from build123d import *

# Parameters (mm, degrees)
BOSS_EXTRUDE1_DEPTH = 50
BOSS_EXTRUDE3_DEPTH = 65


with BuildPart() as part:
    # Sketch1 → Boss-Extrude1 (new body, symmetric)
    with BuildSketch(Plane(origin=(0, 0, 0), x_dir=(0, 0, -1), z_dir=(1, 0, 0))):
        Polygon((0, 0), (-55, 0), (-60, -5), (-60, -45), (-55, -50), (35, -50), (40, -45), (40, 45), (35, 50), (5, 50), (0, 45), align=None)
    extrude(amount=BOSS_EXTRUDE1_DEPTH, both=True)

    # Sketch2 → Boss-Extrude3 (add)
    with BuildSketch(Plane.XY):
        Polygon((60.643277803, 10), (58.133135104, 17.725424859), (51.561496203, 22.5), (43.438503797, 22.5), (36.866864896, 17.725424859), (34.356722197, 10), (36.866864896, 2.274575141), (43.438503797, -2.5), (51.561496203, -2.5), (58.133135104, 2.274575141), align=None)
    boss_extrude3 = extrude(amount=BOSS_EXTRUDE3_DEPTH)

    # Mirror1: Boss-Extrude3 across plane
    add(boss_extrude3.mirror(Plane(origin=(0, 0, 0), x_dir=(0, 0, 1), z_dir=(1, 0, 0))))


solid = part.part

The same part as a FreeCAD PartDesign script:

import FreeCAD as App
import Part
import Sketcher
from FreeCAD import Vector
Q = App.Units.Quantity

doc = App.newDocument("Part")
body = doc.addObject("PartDesign::Body", "Body")

sketch1 = body.newObject("Sketcher::SketchObject", "Sketch")
sketch1.AttachmentSupport = (doc.getObject("YZ_Plane"), [""])
sketch1.MapMode = "FlatFace"
sketch1.addGeometry(Part.LineSegment(Vector(0, 0, 0), Vector(0, 55, 0)), False)
sketch1.addGeometry(Part.LineSegment(Vector(0, 55, 0), Vector(-5, 60, 0)), False)
sketch1.addGeometry(Part.LineSegment(Vector(-5, 60, 0), Vector(-45, 60, 0)), False)
sketch1.addGeometry(Part.LineSegment(Vector(-45, 60, 0), Vector(-50, 55, 0)), False)
sketch1.addGeometry(Part.LineSegment(Vector(-50, 55, 0), Vector(-50, -35, 0)), False)
sketch1.addGeometry(Part.LineSegment(Vector(-50, -35, 0), Vector(-45, -40, 0)), False)
sketch1.addGeometry(Part.LineSegment(Vector(-45, -40, 0), Vector(45, -40, 0)), False)
sketch1.addGeometry(Part.LineSegment(Vector(45, -40, 0), Vector(50, -35, 0)), False)
sketch1.addGeometry(Part.LineSegment(Vector(50, -35, 0), Vector(50, -5, 0)), False)
sketch1.addGeometry(Part.LineSegment(Vector(50, -5, 0), Vector(45, 0, 0)), False)
sketch1.addGeometry(Part.LineSegment(Vector(45, 0, 0), Vector(0, 0, 0)), False)
sketch1.addConstraint(Sketcher.Constraint("Coincident", 0, 2, 1, 1))
sketch1.addConstraint(Sketcher.Constraint("Coincident", 1, 2, 2, 1))
sketch1.addConstraint(Sketcher.Constraint("Coincident", 2, 2, 3, 1))
sketch1.addConstraint(Sketcher.Constraint("Coincident", 3, 2, 4, 1))
sketch1.addConstraint(Sketcher.Constraint("Coincident", 4, 2, 5, 1))
sketch1.addConstraint(Sketcher.Constraint("Coincident", 5, 2, 6, 1))
sketch1.addConstraint(Sketcher.Constraint("Coincident", 6, 2, 7, 1))
sketch1.addConstraint(Sketcher.Constraint("Coincident", 7, 2, 8, 1))
sketch1.addConstraint(Sketcher.Constraint("Coincident", 8, 2, 9, 1))
sketch1.addConstraint(Sketcher.Constraint("Coincident", 9, 2, 10, 1))
sketch1.addConstraint(Sketcher.Constraint("Coincident", 10, 2, 0, 1))
sketch1.addConstraint(Sketcher.Constraint("Vertical", 0))
sketch1.addConstraint(Sketcher.Constraint("Horizontal", 2))
sketch1.addConstraint(Sketcher.Constraint("Vertical", 4))
sketch1.addConstraint(Sketcher.Constraint("Horizontal", 6))
sketch1.addConstraint(Sketcher.Constraint("Vertical", 8))
sketch1.addConstraint(Sketcher.Constraint("Horizontal", 10))
sketch1.addConstraint(Sketcher.Constraint("Coincident", 10, 2, -1, 1))
sketch1.addConstraint(Sketcher.Constraint("Symmetric", 4, 2, 7, 2, -2))
sketch1.addConstraint(Sketcher.Constraint("Perpendicular", 1, 3))
sketch1.addConstraint(Sketcher.Constraint("Perpendicular", 3, 5))
sketch1.addConstraint(Sketcher.Constraint("Perpendicular", 5, 7))
sketch1.addConstraint(Sketcher.Constraint("Perpendicular", 7, 9))
sketch1.addConstraint(Sketcher.Constraint("Horizontal", 0, 2, 3, 2))
sketch1.addConstraint(Sketcher.Constraint("Vertical", 2, 2, 5, 2))
sketch1.addConstraint(Sketcher.Constraint("Vertical", 6, 2, 9, 2))
sketch1.addConstraint(Sketcher.Constraint("Equal", 6, 4))
sketch1.addConstraint(Sketcher.Constraint("Equal", 1, 3))
sketch1.addConstraint(Sketcher.Constraint("DistanceX", 2, 2, 2, 1, 40.0))
sketch1.addConstraint(Sketcher.Constraint("DistanceX", 6, 1, 6, 2, 90.0))
sketch1.addConstraint(Sketcher.Constraint("DistanceY", 0, 1, 0, 2, 55.0))
pad1 = body.newObject("PartDesign::Pad", "Pad")
pad1.Profile = sketch1
pad1.Length = 100
pad1.Midplane = True

sketch2 = body.newObject("Sketcher::SketchObject", "Sketch001")
sketch2.AttachmentSupport = (doc.getObject("XY_Plane"), [""])
sketch2.MapMode = "FlatFace"
sketch2.addGeometry(Part.LineSegment(Vector(61, 10, 0), Vector(58, 18, 0)), False)
sketch2.addGeometry(Part.LineSegment(Vector(58, 18, 0), Vector(52, 22, 0)), False)
sketch2.addGeometry(Part.LineSegment(Vector(52, 22, 0), Vector(43, 22, 0)), False)
sketch2.addGeometry(Part.LineSegment(Vector(43, 22, 0), Vector(37, 18, 0)), False)
sketch2.addGeometry(Part.LineSegment(Vector(37, 18, 0), Vector(34, 10, 0)), False)
sketch2.addGeometry(Part.LineSegment(Vector(34, 10, 0), Vector(37, 2, 0)), False)
sketch2.addGeometry(Part.LineSegment(Vector(37, 2, 0), Vector(43, -2, 0)), False)
sketch2.addGeometry(Part.LineSegment(Vector(43, -2, 0), Vector(52, -2, 0)), False)
sketch2.addGeometry(Part.LineSegment(Vector(52, -2, 0), Vector(58, 2, 0)), False)
sketch2.addGeometry(Part.LineSegment(Vector(58, 2, 0), Vector(61, 10, 0)), False)
sketch2.addConstraint(Sketcher.Constraint("Coincident", 0, 2, 1, 1))
sketch2.addConstraint(Sketcher.Constraint("Coincident", 1, 2, 2, 1))
sketch2.addConstraint(Sketcher.Constraint("Coincident", 2, 2, 3, 1))
sketch2.addConstraint(Sketcher.Constraint("Coincident", 3, 2, 4, 1))
sketch2.addConstraint(Sketcher.Constraint("Coincident", 4, 2, 5, 1))
sketch2.addConstraint(Sketcher.Constraint("Coincident", 5, 2, 6, 1))
sketch2.addConstraint(Sketcher.Constraint("Coincident", 6, 2, 7, 1))
sketch2.addConstraint(Sketcher.Constraint("Coincident", 7, 2, 8, 1))
sketch2.addConstraint(Sketcher.Constraint("Coincident", 8, 2, 9, 1))
sketch2.addConstraint(Sketcher.Constraint("Coincident", 9, 2, 0, 1))
sketch2.addConstraint(Sketcher.Constraint("Horizontal", 2))
sketch2.addConstraint(Sketcher.Constraint("Horizontal", 7))
sketch2.addConstraint(Sketcher.Constraint("Parallel", 0, 5))
sketch2.addConstraint(Sketcher.Constraint("Parallel", 1, 6))
sketch2.addConstraint(Sketcher.Constraint("Parallel", 3, 8))
sketch2.addConstraint(Sketcher.Constraint("Parallel", 4, 9))
sketch2.addConstraint(Sketcher.Constraint("Horizontal", 0, 2, 3, 2))
sketch2.addConstraint(Sketcher.Constraint("Horizontal", 5, 2, 8, 2))
sketch2.addConstraint(Sketcher.Constraint("Horizontal", 4, 2, 9, 2))
sketch2.addConstraint(Sketcher.Constraint("Vertical", 3, 2, 5, 2))
sketch2.addConstraint(Sketcher.Constraint("Vertical", 2, 2, 6, 2))
sketch2.addConstraint(Sketcher.Constraint("Vertical", 1, 2, 7, 2))
sketch2.addConstraint(Sketcher.Constraint("Vertical", 0, 2, 8, 2))
sketch2.addConstraint(Sketcher.Constraint("Equal", 0, 1))
sketch2.addConstraint(Sketcher.Constraint("Angle", 0, Q("108 deg")))
sketch2.addConstraint(Sketcher.Constraint("Angle", 1, Q("144 deg")))
sketch2.addConstraint(Sketcher.Constraint("DistanceY", -1, 1, 4, 2, 10.0))
sketch2.addConstraint(Sketcher.Constraint("DistanceY", 6, 2, 2, 2, 25.0))
sketch2.addConstraint(Sketcher.Constraint("DistanceX", 2, 2, 2, 1, 8.122992))
sketch2.addConstraint(Sketcher.Constraint("DistanceX", -1, 1, 0, 2, 58.133135))
pad2 = body.newObject("PartDesign::Pad", "Pad001")
pad2.Profile = sketch2
pad2.Length = 65
doc.recompute()

mirrored = body.newObject("PartDesign::Mirrored", "Mirrored")
mirrored.Originals = [pad2]
mirrored.MirrorPlane = (doc.getObject("YZ_Plane"), [""])
body.Tip = mirrored

doc.recompute()
